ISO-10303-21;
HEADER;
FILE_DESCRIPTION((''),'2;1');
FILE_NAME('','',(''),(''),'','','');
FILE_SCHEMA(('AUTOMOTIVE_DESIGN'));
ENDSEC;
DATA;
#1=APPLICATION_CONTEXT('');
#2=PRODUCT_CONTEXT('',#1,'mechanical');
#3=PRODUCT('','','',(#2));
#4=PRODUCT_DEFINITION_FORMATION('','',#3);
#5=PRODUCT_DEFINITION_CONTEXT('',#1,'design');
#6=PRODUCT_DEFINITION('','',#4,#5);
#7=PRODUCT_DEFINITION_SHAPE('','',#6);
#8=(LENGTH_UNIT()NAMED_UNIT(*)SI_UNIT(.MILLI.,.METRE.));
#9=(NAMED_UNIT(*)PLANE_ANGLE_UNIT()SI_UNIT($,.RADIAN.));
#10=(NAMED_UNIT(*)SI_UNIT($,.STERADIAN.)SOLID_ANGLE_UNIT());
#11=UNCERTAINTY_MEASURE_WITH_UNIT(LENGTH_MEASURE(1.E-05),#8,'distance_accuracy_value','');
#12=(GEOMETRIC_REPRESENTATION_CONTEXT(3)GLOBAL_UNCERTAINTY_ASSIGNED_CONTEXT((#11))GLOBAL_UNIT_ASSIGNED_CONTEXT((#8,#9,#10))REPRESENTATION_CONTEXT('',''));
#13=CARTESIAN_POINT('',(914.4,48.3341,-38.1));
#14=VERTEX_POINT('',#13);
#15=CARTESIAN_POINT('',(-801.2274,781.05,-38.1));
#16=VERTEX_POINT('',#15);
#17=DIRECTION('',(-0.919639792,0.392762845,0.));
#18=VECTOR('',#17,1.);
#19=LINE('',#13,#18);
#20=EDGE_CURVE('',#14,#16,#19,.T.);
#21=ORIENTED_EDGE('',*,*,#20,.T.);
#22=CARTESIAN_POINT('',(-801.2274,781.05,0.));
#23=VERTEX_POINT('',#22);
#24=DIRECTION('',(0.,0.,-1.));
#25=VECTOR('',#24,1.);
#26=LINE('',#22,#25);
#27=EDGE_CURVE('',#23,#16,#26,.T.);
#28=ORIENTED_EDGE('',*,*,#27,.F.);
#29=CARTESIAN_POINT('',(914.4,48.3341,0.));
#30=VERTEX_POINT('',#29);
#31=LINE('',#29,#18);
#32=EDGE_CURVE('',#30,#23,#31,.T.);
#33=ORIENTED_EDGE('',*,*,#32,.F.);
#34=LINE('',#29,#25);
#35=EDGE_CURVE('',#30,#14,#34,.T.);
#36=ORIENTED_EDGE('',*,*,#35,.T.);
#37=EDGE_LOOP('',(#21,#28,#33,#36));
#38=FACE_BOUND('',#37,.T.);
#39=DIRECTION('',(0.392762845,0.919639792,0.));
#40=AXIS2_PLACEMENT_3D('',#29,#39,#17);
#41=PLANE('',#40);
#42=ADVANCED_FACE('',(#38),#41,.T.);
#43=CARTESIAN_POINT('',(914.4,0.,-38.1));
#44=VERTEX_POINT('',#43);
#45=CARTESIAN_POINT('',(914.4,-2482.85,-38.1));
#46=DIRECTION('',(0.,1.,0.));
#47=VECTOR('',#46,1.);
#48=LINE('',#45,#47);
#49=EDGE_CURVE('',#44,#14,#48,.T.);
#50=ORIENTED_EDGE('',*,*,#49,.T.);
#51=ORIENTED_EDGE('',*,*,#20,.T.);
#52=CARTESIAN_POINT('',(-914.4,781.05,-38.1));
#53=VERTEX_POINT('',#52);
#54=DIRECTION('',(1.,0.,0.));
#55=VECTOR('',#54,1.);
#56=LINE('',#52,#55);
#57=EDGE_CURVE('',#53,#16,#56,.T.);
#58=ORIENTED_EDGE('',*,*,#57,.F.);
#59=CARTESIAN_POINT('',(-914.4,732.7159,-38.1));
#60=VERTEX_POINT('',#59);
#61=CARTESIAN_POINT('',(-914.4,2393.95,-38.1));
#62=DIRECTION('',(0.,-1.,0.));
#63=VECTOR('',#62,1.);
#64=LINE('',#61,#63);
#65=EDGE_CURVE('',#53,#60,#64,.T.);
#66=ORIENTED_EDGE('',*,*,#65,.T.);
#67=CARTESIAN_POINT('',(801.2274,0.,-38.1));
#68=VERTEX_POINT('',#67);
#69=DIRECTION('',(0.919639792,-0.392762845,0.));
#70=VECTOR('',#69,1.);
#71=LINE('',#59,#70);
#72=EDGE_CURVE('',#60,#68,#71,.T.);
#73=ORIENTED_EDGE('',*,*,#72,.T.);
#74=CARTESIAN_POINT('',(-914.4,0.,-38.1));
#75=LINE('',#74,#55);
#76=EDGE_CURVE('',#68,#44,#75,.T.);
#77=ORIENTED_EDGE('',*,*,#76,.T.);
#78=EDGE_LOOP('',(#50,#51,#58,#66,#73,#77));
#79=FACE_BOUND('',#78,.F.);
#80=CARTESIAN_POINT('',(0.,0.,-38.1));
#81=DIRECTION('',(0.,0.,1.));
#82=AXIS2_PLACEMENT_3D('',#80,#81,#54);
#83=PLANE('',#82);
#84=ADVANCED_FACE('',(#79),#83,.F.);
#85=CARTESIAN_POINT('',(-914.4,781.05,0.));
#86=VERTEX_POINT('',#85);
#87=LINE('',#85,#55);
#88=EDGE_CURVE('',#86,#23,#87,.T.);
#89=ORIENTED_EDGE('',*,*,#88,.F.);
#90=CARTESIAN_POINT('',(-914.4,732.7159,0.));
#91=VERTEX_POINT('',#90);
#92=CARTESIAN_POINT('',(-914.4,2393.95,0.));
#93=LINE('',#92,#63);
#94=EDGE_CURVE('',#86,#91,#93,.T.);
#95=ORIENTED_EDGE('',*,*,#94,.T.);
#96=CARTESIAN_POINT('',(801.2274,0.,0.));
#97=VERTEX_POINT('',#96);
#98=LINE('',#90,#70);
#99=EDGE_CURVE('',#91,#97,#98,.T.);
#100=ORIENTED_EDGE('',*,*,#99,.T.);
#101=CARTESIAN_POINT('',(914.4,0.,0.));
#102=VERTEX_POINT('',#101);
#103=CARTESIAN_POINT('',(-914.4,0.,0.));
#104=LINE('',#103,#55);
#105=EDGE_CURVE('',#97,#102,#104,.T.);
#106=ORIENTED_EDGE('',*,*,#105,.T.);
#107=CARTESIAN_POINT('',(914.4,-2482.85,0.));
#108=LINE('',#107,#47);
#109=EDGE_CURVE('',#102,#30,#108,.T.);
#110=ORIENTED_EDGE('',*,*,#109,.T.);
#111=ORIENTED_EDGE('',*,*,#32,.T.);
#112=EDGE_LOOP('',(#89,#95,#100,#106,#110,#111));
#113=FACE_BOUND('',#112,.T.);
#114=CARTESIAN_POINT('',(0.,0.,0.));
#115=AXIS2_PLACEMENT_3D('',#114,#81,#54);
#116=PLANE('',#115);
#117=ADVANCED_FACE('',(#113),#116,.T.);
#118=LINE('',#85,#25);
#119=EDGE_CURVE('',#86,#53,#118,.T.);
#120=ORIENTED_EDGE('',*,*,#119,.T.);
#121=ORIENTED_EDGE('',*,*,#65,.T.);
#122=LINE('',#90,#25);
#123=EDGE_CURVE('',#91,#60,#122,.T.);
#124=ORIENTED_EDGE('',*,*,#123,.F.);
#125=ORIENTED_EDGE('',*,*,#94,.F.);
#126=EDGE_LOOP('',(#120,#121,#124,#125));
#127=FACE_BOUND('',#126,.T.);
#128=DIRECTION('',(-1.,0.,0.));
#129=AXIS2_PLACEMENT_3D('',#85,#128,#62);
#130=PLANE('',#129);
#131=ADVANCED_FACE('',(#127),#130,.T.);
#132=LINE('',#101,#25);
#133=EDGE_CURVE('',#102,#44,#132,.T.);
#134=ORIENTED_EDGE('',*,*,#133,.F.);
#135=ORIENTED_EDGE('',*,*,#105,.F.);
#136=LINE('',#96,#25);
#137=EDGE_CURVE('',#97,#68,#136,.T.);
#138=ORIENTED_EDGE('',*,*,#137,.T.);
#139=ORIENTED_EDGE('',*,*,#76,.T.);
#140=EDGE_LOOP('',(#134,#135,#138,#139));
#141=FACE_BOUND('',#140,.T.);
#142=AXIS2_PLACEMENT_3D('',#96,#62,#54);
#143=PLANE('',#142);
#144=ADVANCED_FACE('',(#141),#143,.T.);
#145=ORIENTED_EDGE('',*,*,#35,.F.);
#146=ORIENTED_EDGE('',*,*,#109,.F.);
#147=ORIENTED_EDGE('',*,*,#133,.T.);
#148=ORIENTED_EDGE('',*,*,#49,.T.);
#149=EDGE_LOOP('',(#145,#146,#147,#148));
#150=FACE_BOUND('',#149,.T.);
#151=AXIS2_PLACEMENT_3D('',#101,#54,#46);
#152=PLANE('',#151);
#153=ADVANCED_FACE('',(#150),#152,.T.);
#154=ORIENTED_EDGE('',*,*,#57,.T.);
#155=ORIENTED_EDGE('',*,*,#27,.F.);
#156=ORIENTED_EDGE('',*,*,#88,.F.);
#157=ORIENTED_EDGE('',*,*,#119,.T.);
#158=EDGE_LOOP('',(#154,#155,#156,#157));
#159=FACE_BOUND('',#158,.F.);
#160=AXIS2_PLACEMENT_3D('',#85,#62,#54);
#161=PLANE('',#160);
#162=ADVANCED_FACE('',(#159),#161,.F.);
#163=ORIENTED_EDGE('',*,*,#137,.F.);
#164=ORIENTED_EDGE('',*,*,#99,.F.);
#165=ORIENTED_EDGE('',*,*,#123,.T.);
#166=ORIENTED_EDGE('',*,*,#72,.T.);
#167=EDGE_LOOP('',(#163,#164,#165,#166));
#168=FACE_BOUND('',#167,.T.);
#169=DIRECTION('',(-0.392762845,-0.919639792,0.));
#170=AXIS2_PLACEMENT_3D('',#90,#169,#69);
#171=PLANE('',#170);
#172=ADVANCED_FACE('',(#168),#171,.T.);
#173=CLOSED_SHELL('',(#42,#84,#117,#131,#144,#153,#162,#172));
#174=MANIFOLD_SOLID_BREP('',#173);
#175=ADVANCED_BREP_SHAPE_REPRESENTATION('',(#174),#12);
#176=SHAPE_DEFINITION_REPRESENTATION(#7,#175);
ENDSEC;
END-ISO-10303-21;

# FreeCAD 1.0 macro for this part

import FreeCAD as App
import Part
import Sketcher

V = App.Vector
Q = App.Units.Quantity


def add_polygon(sketch, points):
    """Adds a closed chain of lines whose ends are joined by coincident constraints."""
    first, n = sketch.GeometryCount, len(points)
    for a, b in zip(points, points[1:] + points[:1]):
        sketch.addGeometry(Part.LineSegment(App.Vector(*a, 0), App.Vector(*b, 0)), False)
    for i in range(n):
        sketch.addConstraint(Sketcher.Constraint("Coincident", first + i, 2, first + (i + 1) % n, 1))

doc = App.newDocument("Part")
body = doc.addObject("PartDesign::Body", "Body")

# Sketch on XY plane
sketch1 = doc.addObject("Sketcher::SketchObject", "Sketch")
body.addObject(sketch1)
sketch1.AttachmentSupport = (doc.XY_Plane, [""])
sketch1.MapMode = "FlatFace"
add_polygon(sketch1, [(801, 0), (914, 0), (914, 48), (-801, 781), (-914, 781), (-914, 733)])  # lines 0-5
sketch1.addConstraint([
    Sketcher.Constraint("Horizontal", 0),
    Sketcher.Constraint("Vertical", 1),
    Sketcher.Constraint("Horizontal", 3),
    Sketcher.Constraint("Vertical", 4),
    Sketcher.Constraint("PointOnObject", 0, 2, -1),
    Sketcher.Constraint("Parallel", 2, 5),
    Sketcher.Constraint("Equal", 0, 3),
    Sketcher.Constraint("DistanceX", -1, 1, 0, 2, Q("36 in")),
    Sketcher.Constraint("DistanceX", 3, 2, -1, 1, Q("36 in")),
    Sketcher.Constraint("DistanceY", -1, 1, 2, 2, Q("30.75 in")),
    Sketcher.Constraint("DistanceX", 0, 1, 0, 2, Q("113.1726 mm")),
    Sketcher.Constraint("DistanceY", 1, 1, 1, 2, Q("48.334 mm")),
])
pad1 = doc.addObject("PartDesign::Pad", "Pad")
body.addObject(pad1)
pad1.Profile = sketch1
pad1.Length = Q("1.5 in")
pad1.Reversed = True

doc.recompute()
